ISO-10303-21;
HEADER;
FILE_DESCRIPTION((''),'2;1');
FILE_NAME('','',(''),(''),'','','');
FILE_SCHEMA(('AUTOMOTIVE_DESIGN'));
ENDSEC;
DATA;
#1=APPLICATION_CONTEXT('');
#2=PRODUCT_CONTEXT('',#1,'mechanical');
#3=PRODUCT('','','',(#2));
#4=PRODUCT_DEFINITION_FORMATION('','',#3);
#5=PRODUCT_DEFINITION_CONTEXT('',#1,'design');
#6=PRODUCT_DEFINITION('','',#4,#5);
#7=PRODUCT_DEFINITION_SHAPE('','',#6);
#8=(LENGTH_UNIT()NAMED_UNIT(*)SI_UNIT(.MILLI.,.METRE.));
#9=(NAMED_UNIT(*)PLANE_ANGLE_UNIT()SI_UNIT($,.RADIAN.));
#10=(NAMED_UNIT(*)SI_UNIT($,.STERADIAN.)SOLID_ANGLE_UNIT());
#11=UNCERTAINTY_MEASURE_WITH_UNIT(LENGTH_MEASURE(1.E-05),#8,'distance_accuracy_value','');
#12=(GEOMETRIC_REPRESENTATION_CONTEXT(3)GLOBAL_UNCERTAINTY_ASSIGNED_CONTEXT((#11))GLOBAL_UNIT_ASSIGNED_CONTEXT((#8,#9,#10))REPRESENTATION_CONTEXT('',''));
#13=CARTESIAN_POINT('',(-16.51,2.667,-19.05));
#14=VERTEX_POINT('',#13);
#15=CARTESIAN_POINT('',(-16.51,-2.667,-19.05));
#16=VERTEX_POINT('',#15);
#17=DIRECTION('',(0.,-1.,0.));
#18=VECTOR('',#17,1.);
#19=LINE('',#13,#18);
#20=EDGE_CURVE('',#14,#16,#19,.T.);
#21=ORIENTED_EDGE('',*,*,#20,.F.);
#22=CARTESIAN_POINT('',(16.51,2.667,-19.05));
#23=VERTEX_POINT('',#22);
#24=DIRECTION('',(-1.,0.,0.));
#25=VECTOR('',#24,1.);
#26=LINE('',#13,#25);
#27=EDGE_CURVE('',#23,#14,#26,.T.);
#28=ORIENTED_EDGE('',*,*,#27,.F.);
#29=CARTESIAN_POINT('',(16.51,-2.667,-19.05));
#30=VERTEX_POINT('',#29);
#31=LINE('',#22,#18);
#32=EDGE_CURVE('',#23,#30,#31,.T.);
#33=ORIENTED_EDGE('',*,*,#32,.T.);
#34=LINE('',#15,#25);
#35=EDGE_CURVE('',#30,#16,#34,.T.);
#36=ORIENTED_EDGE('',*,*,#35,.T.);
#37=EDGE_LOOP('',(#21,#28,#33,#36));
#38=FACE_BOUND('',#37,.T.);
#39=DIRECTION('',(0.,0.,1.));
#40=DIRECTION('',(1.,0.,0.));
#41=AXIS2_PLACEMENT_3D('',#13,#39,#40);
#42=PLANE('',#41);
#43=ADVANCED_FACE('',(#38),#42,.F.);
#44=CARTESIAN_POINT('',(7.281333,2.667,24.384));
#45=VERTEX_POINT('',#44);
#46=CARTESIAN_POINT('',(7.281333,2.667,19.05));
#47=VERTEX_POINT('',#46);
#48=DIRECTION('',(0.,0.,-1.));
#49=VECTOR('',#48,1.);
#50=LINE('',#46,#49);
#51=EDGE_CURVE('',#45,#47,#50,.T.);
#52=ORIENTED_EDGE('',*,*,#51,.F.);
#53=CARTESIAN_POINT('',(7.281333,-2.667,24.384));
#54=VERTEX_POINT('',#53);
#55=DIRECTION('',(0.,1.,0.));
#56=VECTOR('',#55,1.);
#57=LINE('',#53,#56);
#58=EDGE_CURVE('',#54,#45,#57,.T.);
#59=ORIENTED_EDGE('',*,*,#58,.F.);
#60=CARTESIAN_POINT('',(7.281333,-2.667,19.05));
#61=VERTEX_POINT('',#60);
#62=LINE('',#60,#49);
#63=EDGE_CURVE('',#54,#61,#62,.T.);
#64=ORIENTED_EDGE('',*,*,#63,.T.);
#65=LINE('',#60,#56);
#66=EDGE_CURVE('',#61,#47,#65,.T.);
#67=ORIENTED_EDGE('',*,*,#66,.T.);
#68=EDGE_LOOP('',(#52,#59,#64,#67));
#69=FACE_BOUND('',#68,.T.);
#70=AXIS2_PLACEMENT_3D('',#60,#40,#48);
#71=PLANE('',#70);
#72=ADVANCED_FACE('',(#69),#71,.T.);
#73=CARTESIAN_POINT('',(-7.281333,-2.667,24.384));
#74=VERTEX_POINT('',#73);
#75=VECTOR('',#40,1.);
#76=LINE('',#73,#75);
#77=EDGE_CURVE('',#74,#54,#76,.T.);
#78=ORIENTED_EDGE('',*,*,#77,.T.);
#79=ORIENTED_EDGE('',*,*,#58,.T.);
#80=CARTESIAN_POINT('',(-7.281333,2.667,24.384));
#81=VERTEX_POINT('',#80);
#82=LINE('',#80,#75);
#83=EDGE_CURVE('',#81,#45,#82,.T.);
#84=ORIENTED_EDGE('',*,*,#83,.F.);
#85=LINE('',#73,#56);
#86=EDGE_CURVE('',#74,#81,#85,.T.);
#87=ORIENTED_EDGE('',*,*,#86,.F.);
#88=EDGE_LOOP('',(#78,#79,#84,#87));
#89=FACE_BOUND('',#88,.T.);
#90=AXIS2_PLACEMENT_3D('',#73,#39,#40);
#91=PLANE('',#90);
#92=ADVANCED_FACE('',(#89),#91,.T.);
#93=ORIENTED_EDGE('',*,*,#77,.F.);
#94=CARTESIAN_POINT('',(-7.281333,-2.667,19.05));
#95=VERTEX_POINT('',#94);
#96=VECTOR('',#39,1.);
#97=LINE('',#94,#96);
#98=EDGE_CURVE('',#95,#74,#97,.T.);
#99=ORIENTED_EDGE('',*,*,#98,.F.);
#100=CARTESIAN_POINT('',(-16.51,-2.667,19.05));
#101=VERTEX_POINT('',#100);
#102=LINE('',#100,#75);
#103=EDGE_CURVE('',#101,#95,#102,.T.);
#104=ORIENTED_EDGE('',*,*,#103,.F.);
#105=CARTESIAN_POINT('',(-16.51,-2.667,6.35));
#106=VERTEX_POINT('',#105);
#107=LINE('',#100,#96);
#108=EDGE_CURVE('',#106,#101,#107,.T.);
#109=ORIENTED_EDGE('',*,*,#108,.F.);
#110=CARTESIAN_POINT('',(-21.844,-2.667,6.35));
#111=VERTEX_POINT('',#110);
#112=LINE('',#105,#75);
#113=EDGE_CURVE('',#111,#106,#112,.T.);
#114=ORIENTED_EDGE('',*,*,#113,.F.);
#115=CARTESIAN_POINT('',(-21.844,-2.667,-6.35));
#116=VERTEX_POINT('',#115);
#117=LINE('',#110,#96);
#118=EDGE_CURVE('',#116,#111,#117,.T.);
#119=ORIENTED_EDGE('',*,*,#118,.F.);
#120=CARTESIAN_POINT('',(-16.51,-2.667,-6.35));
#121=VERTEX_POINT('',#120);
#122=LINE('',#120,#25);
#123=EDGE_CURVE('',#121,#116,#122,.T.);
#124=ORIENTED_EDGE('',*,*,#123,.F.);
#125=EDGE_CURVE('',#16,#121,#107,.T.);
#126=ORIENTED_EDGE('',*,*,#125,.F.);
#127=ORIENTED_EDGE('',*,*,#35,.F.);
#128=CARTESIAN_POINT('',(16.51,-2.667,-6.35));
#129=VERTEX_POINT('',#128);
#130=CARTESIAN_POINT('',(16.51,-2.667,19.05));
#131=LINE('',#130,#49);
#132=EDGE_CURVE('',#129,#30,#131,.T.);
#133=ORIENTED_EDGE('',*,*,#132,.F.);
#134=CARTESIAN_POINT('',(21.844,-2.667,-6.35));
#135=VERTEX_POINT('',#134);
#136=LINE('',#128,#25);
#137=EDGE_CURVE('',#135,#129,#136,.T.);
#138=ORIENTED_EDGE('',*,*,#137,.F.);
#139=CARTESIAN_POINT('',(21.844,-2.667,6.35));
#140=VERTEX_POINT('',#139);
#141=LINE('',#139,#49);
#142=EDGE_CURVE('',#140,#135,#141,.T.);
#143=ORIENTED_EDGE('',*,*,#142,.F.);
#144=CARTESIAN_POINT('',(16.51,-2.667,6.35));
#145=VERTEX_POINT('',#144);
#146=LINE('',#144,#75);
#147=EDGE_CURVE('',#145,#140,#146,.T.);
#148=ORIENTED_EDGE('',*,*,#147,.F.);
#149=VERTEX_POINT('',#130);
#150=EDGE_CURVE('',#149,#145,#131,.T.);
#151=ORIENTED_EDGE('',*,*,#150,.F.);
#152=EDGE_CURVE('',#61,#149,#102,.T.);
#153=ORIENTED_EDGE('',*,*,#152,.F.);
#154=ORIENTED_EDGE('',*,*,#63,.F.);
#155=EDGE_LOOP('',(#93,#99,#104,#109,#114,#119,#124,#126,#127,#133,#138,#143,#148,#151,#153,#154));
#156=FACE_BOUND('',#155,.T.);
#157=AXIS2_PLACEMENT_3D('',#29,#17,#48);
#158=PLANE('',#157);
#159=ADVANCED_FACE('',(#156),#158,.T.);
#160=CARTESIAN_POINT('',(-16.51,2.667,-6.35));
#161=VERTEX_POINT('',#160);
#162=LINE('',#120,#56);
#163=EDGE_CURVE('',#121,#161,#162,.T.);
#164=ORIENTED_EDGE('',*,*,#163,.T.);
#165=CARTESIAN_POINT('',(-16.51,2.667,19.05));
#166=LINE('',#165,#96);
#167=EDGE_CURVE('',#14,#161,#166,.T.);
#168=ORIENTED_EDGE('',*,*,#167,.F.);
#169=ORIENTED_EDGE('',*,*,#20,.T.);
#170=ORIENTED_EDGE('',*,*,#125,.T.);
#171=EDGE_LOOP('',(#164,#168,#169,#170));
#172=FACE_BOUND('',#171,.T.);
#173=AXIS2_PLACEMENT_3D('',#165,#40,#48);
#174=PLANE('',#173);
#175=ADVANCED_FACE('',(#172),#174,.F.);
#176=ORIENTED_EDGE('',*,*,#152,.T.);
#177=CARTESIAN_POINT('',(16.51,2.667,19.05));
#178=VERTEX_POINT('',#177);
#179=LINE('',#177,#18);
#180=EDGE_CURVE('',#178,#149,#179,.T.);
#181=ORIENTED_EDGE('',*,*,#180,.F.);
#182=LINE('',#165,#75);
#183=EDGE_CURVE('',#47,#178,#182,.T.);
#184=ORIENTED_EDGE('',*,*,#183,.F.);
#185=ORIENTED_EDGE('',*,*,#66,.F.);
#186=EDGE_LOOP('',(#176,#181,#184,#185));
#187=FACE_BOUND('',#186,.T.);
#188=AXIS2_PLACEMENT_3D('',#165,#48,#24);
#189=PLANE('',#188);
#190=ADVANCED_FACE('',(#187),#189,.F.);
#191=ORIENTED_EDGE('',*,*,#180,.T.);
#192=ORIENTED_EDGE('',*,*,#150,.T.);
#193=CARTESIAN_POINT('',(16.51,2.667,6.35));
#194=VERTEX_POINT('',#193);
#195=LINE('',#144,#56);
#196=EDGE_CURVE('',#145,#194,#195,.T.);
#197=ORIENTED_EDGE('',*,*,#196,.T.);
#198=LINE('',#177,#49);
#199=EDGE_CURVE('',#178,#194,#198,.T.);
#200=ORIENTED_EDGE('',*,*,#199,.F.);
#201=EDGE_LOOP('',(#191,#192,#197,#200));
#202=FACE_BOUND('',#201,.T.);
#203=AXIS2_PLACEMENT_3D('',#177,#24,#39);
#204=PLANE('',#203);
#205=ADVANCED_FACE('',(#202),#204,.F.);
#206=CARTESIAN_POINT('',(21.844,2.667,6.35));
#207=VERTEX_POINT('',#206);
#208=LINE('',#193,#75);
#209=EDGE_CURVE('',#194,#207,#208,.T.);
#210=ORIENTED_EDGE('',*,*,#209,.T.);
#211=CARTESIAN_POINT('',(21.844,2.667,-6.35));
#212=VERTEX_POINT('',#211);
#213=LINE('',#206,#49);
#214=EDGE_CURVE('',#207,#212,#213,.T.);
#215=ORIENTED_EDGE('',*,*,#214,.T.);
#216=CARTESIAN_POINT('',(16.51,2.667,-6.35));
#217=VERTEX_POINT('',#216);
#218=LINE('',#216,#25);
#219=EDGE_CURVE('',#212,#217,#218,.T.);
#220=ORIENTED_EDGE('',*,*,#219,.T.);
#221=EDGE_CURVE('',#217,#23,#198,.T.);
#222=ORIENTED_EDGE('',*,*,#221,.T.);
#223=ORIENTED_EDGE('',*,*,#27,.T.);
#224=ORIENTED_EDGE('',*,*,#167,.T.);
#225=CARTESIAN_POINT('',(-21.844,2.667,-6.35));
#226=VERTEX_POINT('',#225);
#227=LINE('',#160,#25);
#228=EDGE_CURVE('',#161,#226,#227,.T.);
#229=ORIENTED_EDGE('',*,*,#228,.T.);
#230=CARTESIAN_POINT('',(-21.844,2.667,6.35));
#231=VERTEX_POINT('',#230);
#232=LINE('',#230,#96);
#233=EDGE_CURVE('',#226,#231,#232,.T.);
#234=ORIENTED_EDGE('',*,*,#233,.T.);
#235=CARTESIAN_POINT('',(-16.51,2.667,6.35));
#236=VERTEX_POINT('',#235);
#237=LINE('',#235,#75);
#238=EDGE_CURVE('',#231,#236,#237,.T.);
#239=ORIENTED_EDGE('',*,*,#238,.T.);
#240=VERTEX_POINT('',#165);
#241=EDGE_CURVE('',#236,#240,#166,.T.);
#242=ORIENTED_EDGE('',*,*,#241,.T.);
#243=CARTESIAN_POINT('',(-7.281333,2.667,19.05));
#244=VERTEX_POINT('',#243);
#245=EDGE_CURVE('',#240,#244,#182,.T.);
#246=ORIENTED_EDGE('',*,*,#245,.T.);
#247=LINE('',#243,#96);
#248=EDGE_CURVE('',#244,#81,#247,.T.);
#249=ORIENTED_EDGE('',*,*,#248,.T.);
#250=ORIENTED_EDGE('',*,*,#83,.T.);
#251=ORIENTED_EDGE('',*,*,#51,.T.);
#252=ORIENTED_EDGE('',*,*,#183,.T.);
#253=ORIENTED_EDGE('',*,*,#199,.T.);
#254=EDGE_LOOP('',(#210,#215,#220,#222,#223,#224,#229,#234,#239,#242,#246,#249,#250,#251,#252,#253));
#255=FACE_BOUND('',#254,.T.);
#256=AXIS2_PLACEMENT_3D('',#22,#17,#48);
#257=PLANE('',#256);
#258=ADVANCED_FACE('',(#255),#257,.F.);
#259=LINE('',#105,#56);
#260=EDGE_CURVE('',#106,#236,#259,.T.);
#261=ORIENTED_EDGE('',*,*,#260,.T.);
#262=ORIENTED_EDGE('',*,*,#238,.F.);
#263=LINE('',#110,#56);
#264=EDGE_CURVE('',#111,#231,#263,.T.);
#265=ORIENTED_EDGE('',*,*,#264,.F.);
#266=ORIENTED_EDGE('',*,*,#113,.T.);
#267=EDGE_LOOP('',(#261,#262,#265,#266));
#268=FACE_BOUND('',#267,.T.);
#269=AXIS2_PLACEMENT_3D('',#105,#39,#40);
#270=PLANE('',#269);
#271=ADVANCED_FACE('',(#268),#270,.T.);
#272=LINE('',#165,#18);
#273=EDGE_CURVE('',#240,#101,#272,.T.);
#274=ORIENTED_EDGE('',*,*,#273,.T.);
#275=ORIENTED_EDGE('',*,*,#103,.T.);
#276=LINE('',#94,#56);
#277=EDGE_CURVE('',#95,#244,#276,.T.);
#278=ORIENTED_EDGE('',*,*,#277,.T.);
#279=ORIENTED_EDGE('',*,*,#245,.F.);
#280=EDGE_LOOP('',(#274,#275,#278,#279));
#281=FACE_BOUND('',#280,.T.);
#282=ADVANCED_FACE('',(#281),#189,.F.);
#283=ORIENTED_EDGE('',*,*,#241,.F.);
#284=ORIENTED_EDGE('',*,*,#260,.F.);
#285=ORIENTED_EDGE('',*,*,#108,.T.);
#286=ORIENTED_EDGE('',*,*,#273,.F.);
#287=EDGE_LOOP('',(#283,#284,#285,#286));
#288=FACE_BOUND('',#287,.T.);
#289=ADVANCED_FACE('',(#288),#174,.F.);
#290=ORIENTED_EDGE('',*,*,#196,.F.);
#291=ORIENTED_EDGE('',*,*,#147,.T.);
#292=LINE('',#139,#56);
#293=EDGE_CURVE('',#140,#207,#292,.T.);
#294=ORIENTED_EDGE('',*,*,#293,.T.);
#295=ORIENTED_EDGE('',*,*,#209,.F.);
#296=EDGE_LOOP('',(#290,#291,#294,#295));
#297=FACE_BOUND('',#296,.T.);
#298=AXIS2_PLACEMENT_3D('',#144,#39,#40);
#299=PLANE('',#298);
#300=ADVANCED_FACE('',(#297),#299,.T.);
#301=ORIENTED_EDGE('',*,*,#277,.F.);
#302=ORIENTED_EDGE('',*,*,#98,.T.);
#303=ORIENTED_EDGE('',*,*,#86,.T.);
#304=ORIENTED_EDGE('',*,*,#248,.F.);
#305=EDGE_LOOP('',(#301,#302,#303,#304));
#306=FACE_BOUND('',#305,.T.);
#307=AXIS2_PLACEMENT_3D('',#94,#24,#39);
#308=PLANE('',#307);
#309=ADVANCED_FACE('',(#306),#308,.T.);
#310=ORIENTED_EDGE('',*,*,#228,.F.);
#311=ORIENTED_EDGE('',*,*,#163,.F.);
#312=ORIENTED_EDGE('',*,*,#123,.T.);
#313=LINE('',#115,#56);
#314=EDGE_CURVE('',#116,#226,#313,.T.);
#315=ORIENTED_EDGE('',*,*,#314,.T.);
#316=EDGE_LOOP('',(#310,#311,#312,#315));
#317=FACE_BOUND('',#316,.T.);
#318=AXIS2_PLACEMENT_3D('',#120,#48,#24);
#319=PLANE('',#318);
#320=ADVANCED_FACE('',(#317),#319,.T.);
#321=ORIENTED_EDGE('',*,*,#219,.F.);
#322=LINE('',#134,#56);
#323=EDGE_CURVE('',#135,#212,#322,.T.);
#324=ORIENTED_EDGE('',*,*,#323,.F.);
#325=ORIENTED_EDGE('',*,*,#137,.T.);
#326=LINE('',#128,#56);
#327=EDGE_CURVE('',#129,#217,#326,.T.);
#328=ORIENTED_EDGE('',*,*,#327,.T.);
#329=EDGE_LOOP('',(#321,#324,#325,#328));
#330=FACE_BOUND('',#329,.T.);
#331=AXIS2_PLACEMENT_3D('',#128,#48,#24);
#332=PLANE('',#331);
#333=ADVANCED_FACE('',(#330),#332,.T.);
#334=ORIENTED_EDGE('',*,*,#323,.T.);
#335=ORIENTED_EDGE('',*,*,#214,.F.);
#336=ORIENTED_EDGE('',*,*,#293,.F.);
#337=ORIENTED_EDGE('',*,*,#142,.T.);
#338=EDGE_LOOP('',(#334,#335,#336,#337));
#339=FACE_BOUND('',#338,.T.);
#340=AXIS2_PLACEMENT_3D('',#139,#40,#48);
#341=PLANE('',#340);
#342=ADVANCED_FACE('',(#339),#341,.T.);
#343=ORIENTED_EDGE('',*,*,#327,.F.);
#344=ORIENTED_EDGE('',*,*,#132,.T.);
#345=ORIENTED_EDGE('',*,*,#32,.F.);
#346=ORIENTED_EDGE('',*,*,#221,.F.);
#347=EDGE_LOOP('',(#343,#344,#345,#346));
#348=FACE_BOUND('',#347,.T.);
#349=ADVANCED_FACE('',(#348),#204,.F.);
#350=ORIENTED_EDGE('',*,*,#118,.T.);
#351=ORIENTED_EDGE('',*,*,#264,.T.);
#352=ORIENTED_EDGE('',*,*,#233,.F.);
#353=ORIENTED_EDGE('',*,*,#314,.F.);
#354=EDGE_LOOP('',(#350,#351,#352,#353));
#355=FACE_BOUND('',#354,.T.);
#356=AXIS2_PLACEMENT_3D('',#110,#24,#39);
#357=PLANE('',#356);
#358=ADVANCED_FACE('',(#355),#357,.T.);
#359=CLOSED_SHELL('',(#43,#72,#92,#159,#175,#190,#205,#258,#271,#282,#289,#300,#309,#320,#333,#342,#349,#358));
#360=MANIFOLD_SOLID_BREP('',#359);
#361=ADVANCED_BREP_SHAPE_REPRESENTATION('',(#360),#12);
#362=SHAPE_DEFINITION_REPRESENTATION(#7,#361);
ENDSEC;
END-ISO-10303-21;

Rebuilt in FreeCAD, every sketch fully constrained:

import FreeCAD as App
import Part
import Sketcher
from FreeCAD import Vector
Q = App.Units.Quantity

doc = App.newDocument("Part")
params = doc.addObject("Spreadsheet::Sheet", "Params")
for row, (alias, value) in enumerate([
    ("sketch1_width", "1.3 in"),
    ("sketch1_height", "1.5 in"),
    ("pad1_length", "0.21 in"),
    ("sketch2_height", "0.5 in"),
    ("sketch2_width", "0.21 in"),
    ("pad2_length", "0.21 in"),
], start=1):
    params.set(f"A{row}", alias)
    params.set(f"B{row}", "=" + value)
    params.setAlias(f"B{row}", alias)

body = doc.addObject("PartDesign::Body", "Body")

# Sketch on XZ plane
sketch1 = body.newObject("Sketcher::SketchObject", "Sketch")
sketch1.AttachmentSupport = (doc.getObject("XZ_Plane"), [""])
sketch1.MapMode = "FlatFace"
sketch1.addGeometry(Part.LineSegment(Vector(-17, -19, 0), Vector(-17, 19, 0)), False)
sketch1.addGeometry(Part.LineSegment(Vector(-17, 19, 0), Vector(17, 19, 0)), False)
sketch1.addGeometry(Part.LineSegment(Vector(17, 19, 0), Vector(17, -19, 0)), False)
sketch1.addGeometry(Part.LineSegment(Vector(17, -19, 0), Vector(-17, -19, 0)), False)
sketch1.addConstraint(Sketcher.Constraint("Coincident", 0, 2, 1, 1))
sketch1.addConstraint(Sketcher.Constraint("Coincident", 1, 2, 2, 1))
sketch1.addConstraint(Sketcher.Constraint("Coincident", 2, 2, 3, 1))
sketch1.addConstraint(Sketcher.Constraint("Coincident", 3, 2, 0, 1))
sketch1.addConstraint(Sketcher.Constraint("Vertical", 0))
sketch1.addConstraint(Sketcher.Constraint("Horizontal", 1))
sketch1.addConstraint(Sketcher.Constraint("Vertical", 2))
sketch1.addConstraint(Sketcher.Constraint("Horizontal", 3))
sketch1.addConstraint(Sketcher.Constraint("Symmetric", 0, 2, 2, 2, -1, 1))
sketch1.addConstraint(Sketcher.Constraint("DistanceX", 1, 1, 1, 2, Q("1.3 in")))
sketch1.addConstraint(Sketcher.Constraint("DistanceY", 0, 1, 0, 2, Q("1.5 in")))
sketch1.setExpression("Constraints[9]", "Params.sketch1_width")
sketch1.setExpression("Constraints[10]", "Params.sketch1_height")
pad1 = body.newObject("PartDesign::Pad", "Pad")
pad1.Profile = sketch1
pad1.setExpression("Length", "Params.pad1_length")
pad1.Midplane = True

# Sketch on XZ plane
sketch2 = body.newObject("Sketcher::SketchObject", "Sketch001")
sketch2.AttachmentSupport = (doc.getObject("XZ_Plane"), [""])
sketch2.MapMode = "FlatFace"
sketch2.AttachmentOffset = App.Placement(Vector(0, 0, -0.105 * 25.4), App.Rotation())
sketch2.addGeometry(Part.LineSegment(Vector(-7, 19, 0), Vector(-7, 24, 0)), False)
sketch2.addGeometry(Part.LineSegment(Vector(-7, 24, 0), Vector(7, 24, 0)), False)
sketch2.addGeometry(Part.LineSegment(Vector(7, 24, 0), Vector(7, 19, 0)), False)
sketch2.addGeometry(Part.LineSegment(Vector(7, 19, 0), Vector(-7, 19, 0)), False)
sketch2.addGeometry(Part.LineSegment(Vector(-22, -6, 0), Vector(-22, 6, 0)), False)
sketch2.addGeometry(Part.LineSegment(Vector(-22, 6, 0), Vector(-17, 6, 0)), False)
sketch2.addGeometry(Part.LineSegment(Vector(-17, 6, 0), Vector(-17, -6, 0)), False)
sketch2.addGeometry(Part.LineSegment(Vector(-17, -6, 0), Vector(-22, -6, 0)), False)
sketch2.addGeometry(Part.LineSegment(Vector(17, -6, 0), Vector(17, 6, 0)), False)
sketch2.addGeometry(Part.LineSegment(Vector(17, 6, 0), Vector(22, 6, 0)), False)
sketch2.addGeometry(Part.LineSegment(Vector(22, 6, 0), Vector(22, -6, 0)), False)
sketch2.addGeometry(Part.LineSegment(Vector(22, -6, 0), Vector(17, -6, 0)), False)
sketch2.addConstraint(Sketcher.Constraint("Coincident", 0, 2, 1, 1))
sketch2.addConstraint(Sketcher.Constraint("Coincident", 1, 2, 2, 1))
sketch2.addConstraint(Sketcher.Constraint("Coincident", 2, 2, 3, 1))
sketch2.addConstraint(Sketcher.Constraint("Coincident", 3, 2, 0, 1))
sketch2.addConstraint(Sketcher.Constraint("Coincident", 4, 2, 5, 1))
sketch2.addConstraint(Sketcher.Constraint("Coincident", 5, 2, 6, 1))
sketch2.addConstraint(Sketcher.Constraint("Coincident", 6, 2, 7, 1))
sketch2.addConstraint(Sketcher.Constraint("Coincident", 7, 2, 4, 1))
sketch2.addConstraint(Sketcher.Constraint("Coincident", 8, 2, 9, 1))
sketch2.addConstraint(Sketcher.Constraint("Coincident", 9, 2, 10, 1))
sketch2.addConstraint(Sketcher.Constraint("Coincident", 10, 2, 11, 1))
sketch2.addConstraint(Sketcher.Constraint("Coincident", 11, 2, 8, 1))
sketch2.addConstraint(Sketcher.Constraint("Vertical", 0))
sketch2.addConstraint(Sketcher.Constraint("Horizontal", 1))
sketch2.addConstraint(Sketcher.Constraint("Vertical", 2))
sketch2.addConstraint(Sketcher.Constraint("Horizontal", 3))
sketch2.addConstraint(Sketcher.Constraint("Vertical", 4))
sketch2.addConstraint(Sketcher.Constraint("Horizontal", 5))
sketch2.addConstraint(Sketcher.Constraint("Vertical", 6))
sketch2.addConstraint(Sketcher.Constraint("Horizontal", 7))
sketch2.addConstraint(Sketcher.Constraint("Vertical", 8))
sketch2.addConstraint(Sketcher.Constraint("Horizontal", 9))
sketch2.addConstraint(Sketcher.Constraint("Vertical", 10))
sketch2.addConstraint(Sketcher.Constraint("Horizontal", 11))
sketch2.addConstraint(Sketcher.Constraint("Symmetric", 6, 2, 8, 2, -1, 1))
sketch2.addConstraint(Sketcher.Constraint("Symmetric", 4, 2, 10, 2, -1, 1))
sketch2.addConstraint(Sketcher.Constraint("Horizontal", 5, 2, 8, 2))
sketch2.addConstraint(Sketcher.Constraint("Equal", 11, 0))
sketch2.addConstraint(Sketcher.Constraint("DistanceY", 4, 1, 4, 2, Q("0.5 in")))
sketch2.addConstraint(Sketcher.Constraint("DistanceY", 6, 2, 3, 2, Q("1 in")))
sketch2.addConstraint(Sketcher.Constraint("DistanceX", 5, 1, 5, 2, Q("0.21 in")))
sketch2.addConstraint(Sketcher.Constraint("DistanceX", 5, 2, 8, 2, Q("1.3 in")))
sketch2.addConstraint(Sketcher.Constraint("DistanceX", 1, 1, 1, 2, Q("14.562667 mm")))
sketch2.addConstraint(Sketcher.Constraint("DistanceX", 0, 2, -1, 1, Q("7.281333 mm")))
sketch2.setExpression("Constraints[28]", "Params.sketch2_height")
sketch2.setExpression("Constraints[30]", "Params.sketch2_width")
pad2 = body.newObject("PartDesign::Pad", "Pad001")
pad2.Profile = sketch2
pad2.setExpression("Length", "Params.pad2_length")

doc.recompute()
